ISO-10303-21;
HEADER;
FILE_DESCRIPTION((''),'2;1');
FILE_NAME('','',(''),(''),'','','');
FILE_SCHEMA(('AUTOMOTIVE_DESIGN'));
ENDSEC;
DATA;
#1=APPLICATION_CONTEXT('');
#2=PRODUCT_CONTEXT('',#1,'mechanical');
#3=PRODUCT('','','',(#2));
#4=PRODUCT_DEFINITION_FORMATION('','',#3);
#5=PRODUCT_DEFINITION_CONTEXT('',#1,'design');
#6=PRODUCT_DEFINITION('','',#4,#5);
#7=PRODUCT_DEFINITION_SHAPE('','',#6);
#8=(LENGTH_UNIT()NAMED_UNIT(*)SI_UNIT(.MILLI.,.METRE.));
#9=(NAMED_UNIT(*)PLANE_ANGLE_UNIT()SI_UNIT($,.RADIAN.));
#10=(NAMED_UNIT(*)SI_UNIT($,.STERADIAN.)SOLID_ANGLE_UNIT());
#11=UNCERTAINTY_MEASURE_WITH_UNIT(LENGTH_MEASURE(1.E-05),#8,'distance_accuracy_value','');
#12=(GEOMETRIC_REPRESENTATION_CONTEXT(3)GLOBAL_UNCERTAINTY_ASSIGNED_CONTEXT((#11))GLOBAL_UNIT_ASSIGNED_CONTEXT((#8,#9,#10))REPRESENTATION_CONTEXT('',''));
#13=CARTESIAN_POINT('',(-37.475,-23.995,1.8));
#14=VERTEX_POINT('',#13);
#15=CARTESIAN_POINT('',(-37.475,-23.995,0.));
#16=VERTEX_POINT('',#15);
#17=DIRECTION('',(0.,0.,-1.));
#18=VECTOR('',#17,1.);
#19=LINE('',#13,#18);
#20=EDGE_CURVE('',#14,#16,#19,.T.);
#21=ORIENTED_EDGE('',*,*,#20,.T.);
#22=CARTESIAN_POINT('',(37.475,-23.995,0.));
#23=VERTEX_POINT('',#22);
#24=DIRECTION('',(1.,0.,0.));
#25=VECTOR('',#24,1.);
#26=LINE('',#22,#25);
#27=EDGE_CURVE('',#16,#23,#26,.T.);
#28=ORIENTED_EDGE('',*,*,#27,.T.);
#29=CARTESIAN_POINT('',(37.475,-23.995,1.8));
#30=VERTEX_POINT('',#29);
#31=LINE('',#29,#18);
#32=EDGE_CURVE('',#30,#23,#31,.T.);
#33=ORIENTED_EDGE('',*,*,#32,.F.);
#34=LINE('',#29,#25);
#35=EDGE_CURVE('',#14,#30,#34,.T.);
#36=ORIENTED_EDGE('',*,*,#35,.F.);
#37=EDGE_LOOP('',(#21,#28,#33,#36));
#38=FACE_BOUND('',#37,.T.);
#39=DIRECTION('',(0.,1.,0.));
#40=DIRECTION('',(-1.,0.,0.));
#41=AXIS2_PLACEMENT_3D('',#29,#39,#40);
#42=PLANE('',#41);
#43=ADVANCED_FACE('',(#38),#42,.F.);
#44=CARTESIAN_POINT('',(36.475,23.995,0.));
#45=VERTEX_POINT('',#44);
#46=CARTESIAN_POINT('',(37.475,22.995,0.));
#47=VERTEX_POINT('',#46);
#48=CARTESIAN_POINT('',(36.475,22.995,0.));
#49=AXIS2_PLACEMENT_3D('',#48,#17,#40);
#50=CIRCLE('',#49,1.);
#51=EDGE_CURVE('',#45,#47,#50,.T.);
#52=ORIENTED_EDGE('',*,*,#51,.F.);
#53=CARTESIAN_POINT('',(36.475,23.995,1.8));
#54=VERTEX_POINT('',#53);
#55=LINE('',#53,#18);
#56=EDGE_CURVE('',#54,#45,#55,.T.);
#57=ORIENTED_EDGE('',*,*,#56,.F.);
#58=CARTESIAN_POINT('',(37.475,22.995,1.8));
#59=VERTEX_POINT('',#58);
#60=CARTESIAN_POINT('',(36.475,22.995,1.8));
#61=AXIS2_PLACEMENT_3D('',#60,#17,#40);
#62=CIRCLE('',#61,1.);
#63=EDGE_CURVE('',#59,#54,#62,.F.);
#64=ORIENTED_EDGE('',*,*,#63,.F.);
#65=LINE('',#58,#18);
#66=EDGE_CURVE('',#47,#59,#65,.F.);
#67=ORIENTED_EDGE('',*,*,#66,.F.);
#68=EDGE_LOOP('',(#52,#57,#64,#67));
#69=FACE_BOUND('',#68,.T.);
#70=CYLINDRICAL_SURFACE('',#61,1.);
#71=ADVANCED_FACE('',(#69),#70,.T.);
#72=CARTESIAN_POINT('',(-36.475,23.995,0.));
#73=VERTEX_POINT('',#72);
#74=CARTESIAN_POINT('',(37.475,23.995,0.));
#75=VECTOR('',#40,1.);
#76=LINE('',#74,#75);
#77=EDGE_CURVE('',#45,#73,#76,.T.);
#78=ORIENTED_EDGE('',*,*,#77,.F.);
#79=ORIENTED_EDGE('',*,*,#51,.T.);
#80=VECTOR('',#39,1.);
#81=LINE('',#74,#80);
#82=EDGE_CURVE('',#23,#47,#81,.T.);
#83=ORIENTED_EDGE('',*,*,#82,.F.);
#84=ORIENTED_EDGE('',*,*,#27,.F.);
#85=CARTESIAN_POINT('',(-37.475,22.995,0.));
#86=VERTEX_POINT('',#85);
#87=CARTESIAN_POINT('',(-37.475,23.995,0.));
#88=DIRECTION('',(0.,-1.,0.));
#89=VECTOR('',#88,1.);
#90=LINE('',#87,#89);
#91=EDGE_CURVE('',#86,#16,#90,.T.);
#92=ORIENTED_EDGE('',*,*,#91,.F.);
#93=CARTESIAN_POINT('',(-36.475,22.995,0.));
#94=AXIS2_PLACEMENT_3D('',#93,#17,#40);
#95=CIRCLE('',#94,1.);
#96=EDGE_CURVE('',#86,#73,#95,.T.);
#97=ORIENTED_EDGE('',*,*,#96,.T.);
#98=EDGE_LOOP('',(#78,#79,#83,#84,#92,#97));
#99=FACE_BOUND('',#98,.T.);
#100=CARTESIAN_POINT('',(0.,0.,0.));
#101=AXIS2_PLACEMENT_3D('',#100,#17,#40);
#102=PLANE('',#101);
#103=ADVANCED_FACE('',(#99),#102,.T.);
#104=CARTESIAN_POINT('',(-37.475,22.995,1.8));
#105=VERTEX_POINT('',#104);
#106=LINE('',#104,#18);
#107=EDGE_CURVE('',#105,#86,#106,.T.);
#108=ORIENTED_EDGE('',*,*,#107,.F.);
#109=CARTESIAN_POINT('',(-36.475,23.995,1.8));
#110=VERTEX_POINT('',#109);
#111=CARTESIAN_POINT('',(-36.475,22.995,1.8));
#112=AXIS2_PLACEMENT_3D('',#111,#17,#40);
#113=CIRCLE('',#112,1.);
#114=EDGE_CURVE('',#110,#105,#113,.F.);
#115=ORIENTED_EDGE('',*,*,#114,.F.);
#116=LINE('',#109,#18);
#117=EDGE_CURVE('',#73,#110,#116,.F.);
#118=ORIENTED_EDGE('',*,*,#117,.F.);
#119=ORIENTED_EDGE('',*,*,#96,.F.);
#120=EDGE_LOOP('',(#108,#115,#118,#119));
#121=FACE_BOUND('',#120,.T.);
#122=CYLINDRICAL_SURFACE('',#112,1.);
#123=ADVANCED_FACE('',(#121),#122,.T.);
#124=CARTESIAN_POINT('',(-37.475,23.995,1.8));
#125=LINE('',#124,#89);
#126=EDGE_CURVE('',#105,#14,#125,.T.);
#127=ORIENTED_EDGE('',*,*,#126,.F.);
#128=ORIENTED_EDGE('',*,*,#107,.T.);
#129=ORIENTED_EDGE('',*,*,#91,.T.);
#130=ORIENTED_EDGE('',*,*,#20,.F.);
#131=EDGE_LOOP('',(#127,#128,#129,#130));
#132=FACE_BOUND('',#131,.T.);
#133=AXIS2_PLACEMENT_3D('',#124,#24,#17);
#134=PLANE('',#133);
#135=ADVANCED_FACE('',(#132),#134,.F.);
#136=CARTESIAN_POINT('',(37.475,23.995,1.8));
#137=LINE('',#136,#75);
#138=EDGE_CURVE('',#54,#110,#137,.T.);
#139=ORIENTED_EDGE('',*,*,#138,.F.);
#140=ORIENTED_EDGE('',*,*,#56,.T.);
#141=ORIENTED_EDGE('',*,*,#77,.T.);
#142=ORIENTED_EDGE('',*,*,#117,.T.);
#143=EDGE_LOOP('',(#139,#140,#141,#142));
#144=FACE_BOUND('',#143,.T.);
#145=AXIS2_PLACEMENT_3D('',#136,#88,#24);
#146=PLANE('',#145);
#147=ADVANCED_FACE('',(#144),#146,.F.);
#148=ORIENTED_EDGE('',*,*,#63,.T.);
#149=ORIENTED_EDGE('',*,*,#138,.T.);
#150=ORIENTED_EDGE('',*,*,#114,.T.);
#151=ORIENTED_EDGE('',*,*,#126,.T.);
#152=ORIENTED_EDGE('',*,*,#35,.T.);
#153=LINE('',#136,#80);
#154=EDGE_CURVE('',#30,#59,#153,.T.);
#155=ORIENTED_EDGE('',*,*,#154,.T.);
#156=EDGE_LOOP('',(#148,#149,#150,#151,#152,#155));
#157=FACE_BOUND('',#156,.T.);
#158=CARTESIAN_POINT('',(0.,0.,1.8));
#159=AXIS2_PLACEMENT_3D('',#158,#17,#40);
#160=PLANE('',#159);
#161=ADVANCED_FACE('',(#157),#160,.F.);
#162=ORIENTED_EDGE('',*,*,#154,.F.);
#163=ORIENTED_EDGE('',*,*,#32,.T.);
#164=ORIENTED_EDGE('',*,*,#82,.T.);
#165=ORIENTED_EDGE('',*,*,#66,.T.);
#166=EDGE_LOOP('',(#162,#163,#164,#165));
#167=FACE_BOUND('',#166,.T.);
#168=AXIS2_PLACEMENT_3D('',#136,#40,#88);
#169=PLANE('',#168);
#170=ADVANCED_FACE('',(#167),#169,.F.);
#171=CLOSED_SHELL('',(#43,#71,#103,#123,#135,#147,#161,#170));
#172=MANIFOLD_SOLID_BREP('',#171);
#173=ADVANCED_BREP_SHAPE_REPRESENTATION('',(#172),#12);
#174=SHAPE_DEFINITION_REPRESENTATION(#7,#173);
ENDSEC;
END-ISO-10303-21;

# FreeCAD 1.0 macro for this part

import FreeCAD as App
import Part
import Sketcher
Q = App.Units.Quantity


def edges_at(feature, points):
    """Names of the edges that pass closest to the given points."""
    edges = feature.Shape.Edges
    near = lambda p: min(range(len(edges)), key=lambda i: edges[i].distToShape(Part.Vertex(*p))[0])
    return sorted({f"Edge{near(p) + 1}" for p in points})

doc = App.newDocument("Part")
body = doc.addObject("PartDesign::Body", "Body")

sketch1 = body.newObject("Sketcher::SketchObject", "Sketch")
sketch1.AttachmentSupport = (doc.getObject("XY_Plane"), [""])
sketch1.MapMode = "FlatFace"
sketch1.addGeometry(Part.LineSegment(App.Vector(-37, 24, 0), App.Vector(-37, -24, 0)), False)
sketch1.addGeometry(Part.LineSegment(App.Vector(-37, -24, 0), App.Vector(37, -24, 0)), False)
sketch1.addGeometry(Part.LineSegment(App.Vector(37, -24, 0), App.Vector(37, 24, 0)), False)
sketch1.addGeometry(Part.LineSegment(App.Vector(37, 24, 0), App.Vector(-37, 24, 0)), False)
sketch1.addConstraint(Sketcher.Constraint("Coincident", 0, 2, 1, 1))
sketch1.addConstraint(Sketcher.Constraint("Coincident", 1, 2, 2, 1))
sketch1.addConstraint(Sketcher.Constraint("Coincident", 2, 2, 3, 1))
sketch1.addConstraint(Sketcher.Constraint("Coincident", 3, 2, 0, 1))
sketch1.addConstraint(Sketcher.Constraint("Vertical", 0))
sketch1.addConstraint(Sketcher.Constraint("Horizontal", 1))
sketch1.addConstraint(Sketcher.Constraint("Vertical", 2))
sketch1.addConstraint(Sketcher.Constraint("Horizontal", 3))
sketch1.addConstraint(Sketcher.Constraint("Symmetric", 0, 2, 2, 2, -1, 1))
sketch1.addConstraint(Sketcher.Constraint("DistanceX", 1, 1, 1, 2, Q("74.95 mm")))
sketch1.addConstraint(Sketcher.Constraint("DistanceY", 0, 2, 0, 1, Q("47.99 mm")))
pad1 = body.newObject("PartDesign::Pad", "Pad")
pad1.Profile = sketch1
pad1.Length = 1.8
doc.recompute()

fillet = body.newObject("PartDesign::Fillet", "Fillet")
fillet.Base = (pad1, edges_at(pad1, [(-37.475, 23.995, 0.9), (37.475, 23.995, 0.9)]))
fillet.Radius = 1

doc.recompute()
